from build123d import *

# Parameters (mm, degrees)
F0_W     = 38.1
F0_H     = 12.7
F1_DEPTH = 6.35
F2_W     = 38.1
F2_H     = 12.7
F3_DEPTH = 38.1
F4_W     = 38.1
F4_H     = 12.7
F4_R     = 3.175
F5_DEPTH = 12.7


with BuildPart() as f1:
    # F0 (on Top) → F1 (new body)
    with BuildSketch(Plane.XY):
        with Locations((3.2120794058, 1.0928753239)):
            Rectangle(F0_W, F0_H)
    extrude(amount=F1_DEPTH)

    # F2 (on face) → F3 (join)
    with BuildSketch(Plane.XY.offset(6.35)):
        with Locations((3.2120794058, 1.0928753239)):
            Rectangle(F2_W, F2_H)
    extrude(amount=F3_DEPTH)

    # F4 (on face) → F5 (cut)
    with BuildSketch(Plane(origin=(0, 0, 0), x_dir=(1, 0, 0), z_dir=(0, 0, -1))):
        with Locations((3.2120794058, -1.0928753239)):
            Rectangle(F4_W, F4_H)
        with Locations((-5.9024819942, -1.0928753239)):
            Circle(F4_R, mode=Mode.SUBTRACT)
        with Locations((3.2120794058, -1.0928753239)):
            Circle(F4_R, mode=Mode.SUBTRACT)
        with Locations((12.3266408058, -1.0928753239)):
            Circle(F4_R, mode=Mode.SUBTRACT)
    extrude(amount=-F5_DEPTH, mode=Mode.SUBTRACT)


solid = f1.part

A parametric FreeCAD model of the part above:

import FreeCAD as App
import Part
import Sketcher

V = App.Vector
Q = App.Units.Quantity

doc = App.newDocument("Part")
body = doc.addObject("PartDesign::Body", "Body")

# Sketch on XY plane
sketch1 = body.newObject("Sketcher::SketchObject", "Sketch")
sketch1.AttachmentSupport = (doc.getObject("XY_Plane"), [""])
sketch1.MapMode = "FlatFace"
sketch1.addGeometry([
    Part.LineSegment(V(-15.837921, 7.442875, 0), V(-15.837921, -5.257125, 0)),
    Part.LineSegment(V(-15.837921, -5.257125, 0), V(22.262079, -5.257125, 0)),
    Part.LineSegment(V(22.262079, -5.257125, 0), V(22.262079, 7.442875, 0)),
    Part.LineSegment(V(22.262079, 7.442875, 0), V(-15.837921, 7.442875, 0)),
], False)
sketch1.addConstraint([
    Sketcher.Constraint("Coincident", 0, 2, 1, 1),
    Sketcher.Constraint("Coincident", 1, 2, 2, 1),
    Sketcher.Constraint("Coincident", 2, 2, 3, 1),
    Sketcher.Constraint("Coincident", 3, 2, 0, 1),
    Sketcher.Constraint("Vertical", 0),
    Sketcher.Constraint("Horizontal", 1),
    Sketcher.Constraint("Vertical", 2),
    Sketcher.Constraint("Horizontal", 3),
    Sketcher.Constraint("DistanceX", 1, 1, 1, 2, Q("1.5 in")),
    Sketcher.Constraint("DistanceY", 0, 2, 0, 1, Q("0.5 in")),
    Sketcher.Constraint("DistanceX", 0, 2, -1, 1, Q("15.837921 mm")),
    Sketcher.Constraint("DistanceY", 0, 2, -1, 1, Q("5.257125 mm")),
])
pad1 = body.newObject("PartDesign::Pad", "Pad")
pad1.Profile = sketch1
pad1.Length = Q("0.25 in")

# Sketch on XY plane
sketch2 = body.newObject("Sketcher::SketchObject", "Sketch001")
sketch2.AttachmentSupport = (doc.getObject("XY_Plane"), [""])
sketch2.MapMode = "FlatFace"
sketch2.AttachmentOffset = App.Placement(V(0, 0, 0.25 * 25.4), App.Rotation())
sketch2.addGeometry([
    Part.LineSegment(V(-15.837921, 7.442875, 0), V(-15.837921, -5.257125, 0)),
    Part.LineSegment(V(-15.837921, -5.257125, 0), V(22.262079, -5.257125, 0)),
    Part.LineSegment(V(22.262079, -5.257125, 0), V(22.262079, 7.442875, 0)),
    Part.LineSegment(V(22.262079, 7.442875, 0), V(-15.837921, 7.442875, 0)),
], False)
sketch2.addConstraint([
    Sketcher.Constraint("Coincident", 0, 2, 1, 1),
    Sketcher.Constraint("Coincident", 1, 2, 2, 1),
    Sketcher.Constraint("Coincident", 2, 2, 3, 1),
    Sketcher.Constraint("Coincident", 3, 2, 0, 1),
    Sketcher.Constraint("Vertical", 0),
    Sketcher.Constraint("Horizontal", 1),
    Sketcher.Constraint("Vertical", 2),
    Sketcher.Constraint("Horizontal", 3),
    Sketcher.Constraint("DistanceX", 1, 1, 1, 2, Q("1.5 in")),
    Sketcher.Constraint("DistanceY", 0, 2, 0, 1, Q("0.5 in")),
    Sketcher.Constraint("DistanceX", 0, 2, -1, 1, Q("15.837921 mm")),
    Sketcher.Constraint("DistanceY", 0, 2, -1, 1, Q("5.257125 mm")),
])
pad2 = body.newObject("PartDesign::Pad", "Pad001")
pad2.Profile = sketch2
pad2.Length = Q("1.5 in")

# Sketch on XY plane
sketch3 = body.newObject("Sketcher::SketchObject", "Sketch002")
sketch3.AttachmentSupport = (doc.getObject("XY_Plane"), [""])
sketch3.MapMode = "FlatFace"
sketch3.addGeometry([
    Part.LineSegment(V(-15.837921, -5.257125, 0), V(-15.837921, 7.442875, 0)),  # 0
    Part.LineSegment(V(-15.837921, 7.442875, 0), V(22.262079, 7.442875, 0)),  # 1
    Part.LineSegment(V(22.262079, 7.442875, 0), V(22.262079, -5.257125, 0)),  # 2
    Part.LineSegment(V(22.262079, -5.257125, 0), V(-15.837921, -5.257125, 0)),  # 3
    Part.Circle(V(-5.902482, 1.092875, 0), V(0, 0, 1), 3.175),  # 4
    Part.Circle(V(3.212079, 1.092875, 0), V(0, 0, 1), 3.175),  # 5
    Part.Circle(V(12.326641, 1.092875, 0), V(0, 0, 1), 3.175),  # 6
], False)
sketch3.addConstraint([
    Sketcher.Constraint("Coincident", 0, 2, 1, 1),
    Sketcher.Constraint("Coincident", 1, 2, 2, 1),
    Sketcher.Constraint("Coincident", 2, 2, 3, 1),
    Sketcher.Constraint("Coincident", 3, 2, 0, 1),
    Sketcher.Constraint("Vertical", 0),
    Sketcher.Constraint("Horizontal", 1),
    Sketcher.Constraint("Vertical", 2),
    Sketcher.Constraint("Horizontal", 3),
    Sketcher.Constraint("Equal", 4, 5),
    Sketcher.Constraint("Equal", 5, 6),
    Sketcher.Constraint("Horizontal", 4, 3, 5, 3),
    Sketcher.Constraint("Horizontal", 5, 3, 6, 3),
    Sketcher.Constraint("Diameter", 4, Q("0.25 in")),
    Sketcher.Constraint("DistanceX", 1, 1, 1, 2, Q("1.5 in")),
    Sketcher.Constraint("DistanceY", 0, 1, 0, 2, Q("0.5 in")),
    Sketcher.Constraint("DistanceY", 4, 3, 0, 2, Q("0.25 in")),
    Sketcher.Constraint("DistanceX", 0, 2, 5, 3, Q("0.75 in")),
    Sketcher.Constraint("DistanceX", 4, 3, -1, 1, Q("5.902482 mm")),
    Sketcher.Constraint("DistanceX", -1, 1, 5, 3, Q("3.212079 mm")),
    Sketcher.Constraint("DistanceX", -1, 1, 6, 3, Q("12.326641 mm")),
    Sketcher.Constraint("DistanceY", -1, 1, 4, 3, Q("1.092875 mm")),
])
pocket1 = body.newObject("PartDesign::Pocket", "Pocket")
pocket1.Profile = sketch3
pocket1.Length = Q("0.5 in")
pocket1.Reversed = True

doc.recompute()
